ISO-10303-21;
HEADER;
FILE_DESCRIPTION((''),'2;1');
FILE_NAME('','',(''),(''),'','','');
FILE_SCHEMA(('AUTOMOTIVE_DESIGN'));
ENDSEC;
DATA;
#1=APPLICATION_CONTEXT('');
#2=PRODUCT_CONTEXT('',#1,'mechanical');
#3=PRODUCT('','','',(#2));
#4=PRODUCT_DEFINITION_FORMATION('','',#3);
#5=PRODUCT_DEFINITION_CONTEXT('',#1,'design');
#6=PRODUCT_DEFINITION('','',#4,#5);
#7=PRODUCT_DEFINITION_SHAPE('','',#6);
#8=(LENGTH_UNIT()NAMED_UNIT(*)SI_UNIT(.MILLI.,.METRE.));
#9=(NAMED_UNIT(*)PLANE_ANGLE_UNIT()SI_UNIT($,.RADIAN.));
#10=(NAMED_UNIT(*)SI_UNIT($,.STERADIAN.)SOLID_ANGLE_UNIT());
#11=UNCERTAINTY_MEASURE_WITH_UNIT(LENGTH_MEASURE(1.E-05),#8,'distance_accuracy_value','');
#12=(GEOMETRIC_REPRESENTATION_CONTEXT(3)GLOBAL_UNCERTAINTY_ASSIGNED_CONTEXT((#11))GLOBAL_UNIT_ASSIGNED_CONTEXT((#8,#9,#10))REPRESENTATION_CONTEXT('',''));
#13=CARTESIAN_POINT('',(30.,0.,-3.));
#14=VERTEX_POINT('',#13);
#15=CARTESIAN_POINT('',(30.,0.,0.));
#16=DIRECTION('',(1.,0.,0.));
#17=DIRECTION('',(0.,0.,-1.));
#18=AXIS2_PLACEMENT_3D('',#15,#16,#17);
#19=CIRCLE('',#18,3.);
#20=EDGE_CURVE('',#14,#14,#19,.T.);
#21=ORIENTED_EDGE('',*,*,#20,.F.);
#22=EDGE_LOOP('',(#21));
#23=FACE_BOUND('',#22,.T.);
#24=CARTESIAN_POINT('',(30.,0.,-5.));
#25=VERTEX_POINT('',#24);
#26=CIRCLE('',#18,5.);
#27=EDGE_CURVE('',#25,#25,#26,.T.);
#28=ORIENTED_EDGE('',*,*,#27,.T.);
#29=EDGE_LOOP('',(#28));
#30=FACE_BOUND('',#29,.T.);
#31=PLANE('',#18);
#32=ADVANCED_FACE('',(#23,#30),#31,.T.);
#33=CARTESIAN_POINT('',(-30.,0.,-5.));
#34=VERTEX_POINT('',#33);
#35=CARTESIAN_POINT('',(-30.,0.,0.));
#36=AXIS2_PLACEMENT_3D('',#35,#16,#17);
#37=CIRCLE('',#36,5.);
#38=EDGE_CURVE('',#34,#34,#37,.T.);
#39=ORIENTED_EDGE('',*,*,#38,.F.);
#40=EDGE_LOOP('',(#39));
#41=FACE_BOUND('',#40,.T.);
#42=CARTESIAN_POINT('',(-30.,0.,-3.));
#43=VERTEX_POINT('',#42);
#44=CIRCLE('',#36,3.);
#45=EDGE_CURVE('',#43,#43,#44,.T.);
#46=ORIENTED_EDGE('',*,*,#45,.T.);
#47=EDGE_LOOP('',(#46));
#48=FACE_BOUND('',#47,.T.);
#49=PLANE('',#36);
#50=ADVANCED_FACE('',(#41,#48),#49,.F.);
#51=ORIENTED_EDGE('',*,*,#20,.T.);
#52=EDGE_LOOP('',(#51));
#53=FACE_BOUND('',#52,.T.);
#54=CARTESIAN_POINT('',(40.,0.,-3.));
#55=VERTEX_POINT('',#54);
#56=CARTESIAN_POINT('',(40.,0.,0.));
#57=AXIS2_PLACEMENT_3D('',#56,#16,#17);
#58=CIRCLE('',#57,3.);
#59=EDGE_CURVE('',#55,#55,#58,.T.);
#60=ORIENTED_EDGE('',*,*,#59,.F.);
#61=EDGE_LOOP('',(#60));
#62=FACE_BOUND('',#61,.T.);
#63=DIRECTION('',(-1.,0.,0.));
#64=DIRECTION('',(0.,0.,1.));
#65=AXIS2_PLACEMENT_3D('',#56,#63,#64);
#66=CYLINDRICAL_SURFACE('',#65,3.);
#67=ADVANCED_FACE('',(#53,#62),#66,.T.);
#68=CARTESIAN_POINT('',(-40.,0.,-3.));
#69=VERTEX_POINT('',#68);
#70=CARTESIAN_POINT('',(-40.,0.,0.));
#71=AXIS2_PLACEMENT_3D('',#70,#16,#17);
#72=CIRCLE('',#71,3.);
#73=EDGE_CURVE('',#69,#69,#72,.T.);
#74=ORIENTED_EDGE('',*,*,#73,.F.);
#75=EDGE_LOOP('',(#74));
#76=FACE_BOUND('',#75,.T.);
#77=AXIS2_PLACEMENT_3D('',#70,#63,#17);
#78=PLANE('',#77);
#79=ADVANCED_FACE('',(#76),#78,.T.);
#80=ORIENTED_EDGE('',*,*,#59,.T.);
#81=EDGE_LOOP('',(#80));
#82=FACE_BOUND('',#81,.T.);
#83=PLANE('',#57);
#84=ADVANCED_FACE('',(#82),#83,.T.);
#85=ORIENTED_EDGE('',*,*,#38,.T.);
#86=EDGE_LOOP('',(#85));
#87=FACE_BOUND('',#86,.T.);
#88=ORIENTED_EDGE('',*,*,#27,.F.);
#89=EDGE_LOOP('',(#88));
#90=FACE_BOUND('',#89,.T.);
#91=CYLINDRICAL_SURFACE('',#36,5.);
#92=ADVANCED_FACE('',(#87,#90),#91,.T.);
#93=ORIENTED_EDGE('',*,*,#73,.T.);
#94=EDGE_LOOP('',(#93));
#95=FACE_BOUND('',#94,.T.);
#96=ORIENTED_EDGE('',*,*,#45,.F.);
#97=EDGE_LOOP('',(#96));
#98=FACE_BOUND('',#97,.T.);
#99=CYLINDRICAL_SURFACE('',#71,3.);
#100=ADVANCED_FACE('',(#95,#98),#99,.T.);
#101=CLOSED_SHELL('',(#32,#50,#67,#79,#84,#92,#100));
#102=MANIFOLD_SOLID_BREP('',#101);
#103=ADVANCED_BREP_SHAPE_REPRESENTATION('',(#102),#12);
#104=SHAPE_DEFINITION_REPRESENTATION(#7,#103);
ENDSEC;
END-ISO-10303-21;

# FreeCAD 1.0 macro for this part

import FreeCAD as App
import Part
import Sketcher

doc = App.newDocument("Part")
body = doc.addObject("PartDesign::Body", "Body")

sketch1 = body.newObject("Sketcher::SketchObject", "Sketch")
sketch1.AttachmentSupport = (doc.getObject("YZ_Plane"), [""])
sketch1.MapMode = "FlatFace"
sketch1.addGeometry(Part.Circle(App.Vector(0, 0, 0), App.Vector(0, 0, 1), 5), False)
sketch1.addConstraint([
    Sketcher.Constraint("Coincident", 0, 3, -1, 1),
    Sketcher.Constraint("Diameter", 0, 10.0),
])
pad1 = body.newObject("PartDesign::Pad", "Pad")
pad1.Profile = sketch1
pad1.Type = "TwoLengths"
pad1.Length = 30
pad1.Length2 = 30

sketch2 = body.newObject("Sketcher::SketchObject", "Sketch001")
sketch2.AttachmentSupport = (doc.getObject("YZ_Plane"), [""])
sketch2.MapMode = "FlatFace"
sketch2.AttachmentOffset = App.Placement(App.Vector(0, 0, 30), App.Rotation())
sketch2.addGeometry(Part.Circle(App.Vector(0, 0, 0), App.Vector(0, 0, 1), 3), False)
sketch2.addConstraint([
    Sketcher.Constraint("Coincident", 0, 3, -1, 1),
    Sketcher.Constraint("Diameter", 0, 6.0),
])
pad2 = body.newObject("PartDesign::Pad", "Pad001")
pad2.Profile = sketch2
pad2.Length = 10
doc.recompute()

mirrored = body.newObject("PartDesign::Mirrored", "Mirrored")
mirrored.Originals = [pad2]
mirrored.MirrorPlane = (doc.getObject("YZ_Plane"), [""])
body.Tip = mirrored

doc.recompute()
